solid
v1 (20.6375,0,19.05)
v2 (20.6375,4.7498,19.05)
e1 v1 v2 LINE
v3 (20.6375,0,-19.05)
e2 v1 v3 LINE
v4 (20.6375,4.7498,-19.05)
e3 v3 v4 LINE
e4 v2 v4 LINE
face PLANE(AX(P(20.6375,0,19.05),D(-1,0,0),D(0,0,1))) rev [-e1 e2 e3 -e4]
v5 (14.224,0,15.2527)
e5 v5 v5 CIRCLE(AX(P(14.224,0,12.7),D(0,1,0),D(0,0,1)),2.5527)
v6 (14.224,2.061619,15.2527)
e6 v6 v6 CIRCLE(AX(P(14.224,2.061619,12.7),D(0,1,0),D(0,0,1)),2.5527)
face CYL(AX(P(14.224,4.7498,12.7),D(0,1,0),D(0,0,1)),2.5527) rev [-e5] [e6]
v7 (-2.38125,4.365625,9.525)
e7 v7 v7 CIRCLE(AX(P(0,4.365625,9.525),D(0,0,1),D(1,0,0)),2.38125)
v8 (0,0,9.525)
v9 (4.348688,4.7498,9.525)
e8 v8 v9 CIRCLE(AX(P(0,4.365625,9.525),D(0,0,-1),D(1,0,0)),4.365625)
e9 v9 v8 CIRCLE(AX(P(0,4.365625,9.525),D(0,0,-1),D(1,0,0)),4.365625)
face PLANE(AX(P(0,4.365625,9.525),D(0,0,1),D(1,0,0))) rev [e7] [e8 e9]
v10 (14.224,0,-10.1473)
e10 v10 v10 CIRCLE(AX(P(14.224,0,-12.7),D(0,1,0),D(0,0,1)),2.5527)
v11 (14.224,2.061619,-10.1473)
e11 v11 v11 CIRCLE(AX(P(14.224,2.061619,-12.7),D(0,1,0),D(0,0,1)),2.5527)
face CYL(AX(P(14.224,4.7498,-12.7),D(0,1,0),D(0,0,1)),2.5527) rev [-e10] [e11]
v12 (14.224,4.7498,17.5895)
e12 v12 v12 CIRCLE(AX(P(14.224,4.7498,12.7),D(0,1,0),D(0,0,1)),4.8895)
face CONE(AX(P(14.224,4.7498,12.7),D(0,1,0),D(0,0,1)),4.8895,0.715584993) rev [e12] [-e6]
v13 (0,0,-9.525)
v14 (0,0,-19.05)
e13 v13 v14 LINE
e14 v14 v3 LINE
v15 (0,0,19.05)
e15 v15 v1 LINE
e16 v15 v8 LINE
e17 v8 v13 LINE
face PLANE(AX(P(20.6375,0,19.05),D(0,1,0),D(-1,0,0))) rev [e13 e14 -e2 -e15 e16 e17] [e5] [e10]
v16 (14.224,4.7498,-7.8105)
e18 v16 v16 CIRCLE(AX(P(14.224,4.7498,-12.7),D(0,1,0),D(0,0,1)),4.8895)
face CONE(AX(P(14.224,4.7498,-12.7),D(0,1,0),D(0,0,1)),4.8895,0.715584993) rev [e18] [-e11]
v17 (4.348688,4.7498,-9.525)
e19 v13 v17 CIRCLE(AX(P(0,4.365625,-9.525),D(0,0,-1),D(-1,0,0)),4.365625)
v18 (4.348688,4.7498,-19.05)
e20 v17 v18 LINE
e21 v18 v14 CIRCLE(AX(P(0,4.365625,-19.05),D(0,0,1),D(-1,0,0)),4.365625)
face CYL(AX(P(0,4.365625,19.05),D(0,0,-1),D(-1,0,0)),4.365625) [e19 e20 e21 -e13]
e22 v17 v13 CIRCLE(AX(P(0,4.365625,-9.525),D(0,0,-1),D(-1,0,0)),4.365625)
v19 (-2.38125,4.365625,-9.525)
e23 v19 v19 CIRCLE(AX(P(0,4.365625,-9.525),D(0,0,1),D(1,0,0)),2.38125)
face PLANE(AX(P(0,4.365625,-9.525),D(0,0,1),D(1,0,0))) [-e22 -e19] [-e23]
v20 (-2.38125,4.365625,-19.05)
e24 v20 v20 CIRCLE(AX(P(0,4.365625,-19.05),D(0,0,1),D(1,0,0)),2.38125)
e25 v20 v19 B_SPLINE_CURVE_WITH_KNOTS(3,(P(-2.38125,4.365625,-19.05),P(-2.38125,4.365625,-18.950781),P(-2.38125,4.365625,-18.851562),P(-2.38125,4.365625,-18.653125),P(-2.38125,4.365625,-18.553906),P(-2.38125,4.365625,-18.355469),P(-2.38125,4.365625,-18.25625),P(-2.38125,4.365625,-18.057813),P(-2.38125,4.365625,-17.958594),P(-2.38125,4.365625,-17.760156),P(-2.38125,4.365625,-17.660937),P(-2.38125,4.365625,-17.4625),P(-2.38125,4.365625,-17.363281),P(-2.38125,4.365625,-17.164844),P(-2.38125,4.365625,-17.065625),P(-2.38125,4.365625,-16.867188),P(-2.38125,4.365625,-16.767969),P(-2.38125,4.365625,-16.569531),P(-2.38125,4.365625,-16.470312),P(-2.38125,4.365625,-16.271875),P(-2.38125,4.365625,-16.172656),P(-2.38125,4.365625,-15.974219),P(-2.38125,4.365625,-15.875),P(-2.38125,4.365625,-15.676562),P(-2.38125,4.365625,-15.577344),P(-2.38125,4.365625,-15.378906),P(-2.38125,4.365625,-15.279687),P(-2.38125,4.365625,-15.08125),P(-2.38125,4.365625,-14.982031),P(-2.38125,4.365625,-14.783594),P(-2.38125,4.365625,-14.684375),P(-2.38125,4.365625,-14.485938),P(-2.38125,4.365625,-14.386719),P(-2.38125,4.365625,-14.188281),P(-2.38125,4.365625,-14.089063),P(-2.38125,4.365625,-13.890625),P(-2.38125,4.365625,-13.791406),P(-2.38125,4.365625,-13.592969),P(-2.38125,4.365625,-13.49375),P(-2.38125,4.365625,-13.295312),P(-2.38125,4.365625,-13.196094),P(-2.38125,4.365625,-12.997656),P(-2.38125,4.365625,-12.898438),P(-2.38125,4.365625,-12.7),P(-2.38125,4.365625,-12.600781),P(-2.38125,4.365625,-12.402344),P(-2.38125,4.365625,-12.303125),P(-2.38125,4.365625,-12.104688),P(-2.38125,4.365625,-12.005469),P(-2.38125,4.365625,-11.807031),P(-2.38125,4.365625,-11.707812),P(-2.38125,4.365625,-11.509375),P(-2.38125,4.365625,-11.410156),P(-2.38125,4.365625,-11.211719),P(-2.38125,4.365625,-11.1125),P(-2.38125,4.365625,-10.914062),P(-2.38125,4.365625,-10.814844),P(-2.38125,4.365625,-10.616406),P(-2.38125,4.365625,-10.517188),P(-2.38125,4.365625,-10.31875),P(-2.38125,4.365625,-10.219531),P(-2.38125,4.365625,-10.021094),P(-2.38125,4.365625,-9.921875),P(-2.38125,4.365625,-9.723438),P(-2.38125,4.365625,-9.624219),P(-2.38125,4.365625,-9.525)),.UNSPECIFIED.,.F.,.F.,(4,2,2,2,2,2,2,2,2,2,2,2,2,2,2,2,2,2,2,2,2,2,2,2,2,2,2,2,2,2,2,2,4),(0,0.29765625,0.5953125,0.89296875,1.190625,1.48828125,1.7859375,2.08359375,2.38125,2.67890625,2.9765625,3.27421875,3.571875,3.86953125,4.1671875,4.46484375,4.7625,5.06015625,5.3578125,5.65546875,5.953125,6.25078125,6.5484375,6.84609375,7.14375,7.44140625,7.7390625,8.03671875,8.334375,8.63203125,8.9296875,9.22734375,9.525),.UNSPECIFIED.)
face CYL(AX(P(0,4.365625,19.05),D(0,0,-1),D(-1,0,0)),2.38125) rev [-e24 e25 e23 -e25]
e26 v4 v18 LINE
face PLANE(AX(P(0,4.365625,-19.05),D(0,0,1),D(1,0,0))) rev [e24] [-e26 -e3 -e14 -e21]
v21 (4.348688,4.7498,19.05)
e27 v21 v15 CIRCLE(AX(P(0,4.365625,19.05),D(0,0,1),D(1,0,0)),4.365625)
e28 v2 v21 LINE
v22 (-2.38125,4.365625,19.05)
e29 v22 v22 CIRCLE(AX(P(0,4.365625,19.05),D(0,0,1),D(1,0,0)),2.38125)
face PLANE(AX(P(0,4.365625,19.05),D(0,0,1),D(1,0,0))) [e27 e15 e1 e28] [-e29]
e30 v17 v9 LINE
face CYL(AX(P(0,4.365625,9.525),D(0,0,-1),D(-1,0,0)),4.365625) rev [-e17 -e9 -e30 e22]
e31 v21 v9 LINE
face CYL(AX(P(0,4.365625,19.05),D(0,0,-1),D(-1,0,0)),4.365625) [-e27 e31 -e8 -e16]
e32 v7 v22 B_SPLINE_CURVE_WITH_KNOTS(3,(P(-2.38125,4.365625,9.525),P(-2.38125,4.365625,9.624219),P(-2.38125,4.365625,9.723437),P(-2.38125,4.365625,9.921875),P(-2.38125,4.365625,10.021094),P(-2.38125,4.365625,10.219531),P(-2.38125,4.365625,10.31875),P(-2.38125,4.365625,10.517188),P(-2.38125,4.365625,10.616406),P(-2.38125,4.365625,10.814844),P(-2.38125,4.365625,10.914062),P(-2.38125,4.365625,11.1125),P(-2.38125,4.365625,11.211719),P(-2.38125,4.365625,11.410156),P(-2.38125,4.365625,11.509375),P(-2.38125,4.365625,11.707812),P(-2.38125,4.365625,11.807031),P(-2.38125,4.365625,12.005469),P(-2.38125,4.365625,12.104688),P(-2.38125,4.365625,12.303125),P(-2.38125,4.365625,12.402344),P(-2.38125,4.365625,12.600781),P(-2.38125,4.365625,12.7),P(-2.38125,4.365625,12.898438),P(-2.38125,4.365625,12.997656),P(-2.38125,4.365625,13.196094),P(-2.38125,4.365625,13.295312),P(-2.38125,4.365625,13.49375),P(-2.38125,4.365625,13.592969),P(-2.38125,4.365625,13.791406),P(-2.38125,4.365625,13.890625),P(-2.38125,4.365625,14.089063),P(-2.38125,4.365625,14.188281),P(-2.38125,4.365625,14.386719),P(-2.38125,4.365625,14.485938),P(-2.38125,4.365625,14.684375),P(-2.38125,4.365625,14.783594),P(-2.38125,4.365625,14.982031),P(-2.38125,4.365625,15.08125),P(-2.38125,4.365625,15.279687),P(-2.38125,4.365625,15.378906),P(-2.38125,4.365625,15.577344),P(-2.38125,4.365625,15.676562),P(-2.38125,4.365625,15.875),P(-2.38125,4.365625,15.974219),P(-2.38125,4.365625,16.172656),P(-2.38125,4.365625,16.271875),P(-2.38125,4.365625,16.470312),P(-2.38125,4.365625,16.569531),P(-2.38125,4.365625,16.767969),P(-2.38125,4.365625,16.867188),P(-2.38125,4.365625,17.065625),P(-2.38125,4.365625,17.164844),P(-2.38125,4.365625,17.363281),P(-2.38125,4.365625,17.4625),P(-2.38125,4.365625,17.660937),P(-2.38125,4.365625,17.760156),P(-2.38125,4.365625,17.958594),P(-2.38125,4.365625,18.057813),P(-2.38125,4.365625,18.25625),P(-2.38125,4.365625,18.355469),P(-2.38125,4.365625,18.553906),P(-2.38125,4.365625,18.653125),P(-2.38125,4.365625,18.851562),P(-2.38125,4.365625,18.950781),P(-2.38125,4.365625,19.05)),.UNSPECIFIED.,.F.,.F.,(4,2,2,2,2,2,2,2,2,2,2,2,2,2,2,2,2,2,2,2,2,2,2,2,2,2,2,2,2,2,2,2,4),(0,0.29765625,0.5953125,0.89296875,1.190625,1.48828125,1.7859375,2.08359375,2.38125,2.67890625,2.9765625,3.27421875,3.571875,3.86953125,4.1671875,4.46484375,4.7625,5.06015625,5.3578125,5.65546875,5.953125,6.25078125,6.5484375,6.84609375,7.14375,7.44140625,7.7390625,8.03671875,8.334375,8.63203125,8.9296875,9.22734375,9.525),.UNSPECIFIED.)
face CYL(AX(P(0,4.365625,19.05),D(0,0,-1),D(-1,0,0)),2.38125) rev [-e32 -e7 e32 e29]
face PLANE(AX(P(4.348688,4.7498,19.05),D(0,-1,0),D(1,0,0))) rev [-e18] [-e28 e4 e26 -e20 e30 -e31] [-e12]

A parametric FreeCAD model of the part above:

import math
import FreeCAD as App
import Part
import Sketcher
Q = App.Units.Quantity

doc = App.newDocument("Part")
params = doc.addObject("Spreadsheet::Sheet", "Params")
for row, (alias, value) in enumerate([
    ("sketch1_diameter", "0.1875 in"),
    ("sketch1_radius", "0.171875 in"),
    ("sketch1_width", "0.8125 in"),
    ("sketch1_height", "0.187 in"),
    ("pad1_length", "1.5 in"),
    ("sketch2_width", "0.187 in"),
    ("groove_angle", "360 deg"),
    ("linearpattern_pitch", "1 in"),
    ("sketch3_radius", "0.171875 in"),
    ("pocket1_length", "0.75 in"),
], start=1):
    params.set(f"A{row}", alias)
    params.set(f"B{row}", "=" + value)
    params.setAlias(f"B{row}", alias)

body = doc.addObject("PartDesign::Body", "Body")

# Sketch on XY plane
sketch1 = body.newObject("Sketcher::SketchObject", "Sketch")
sketch1.AttachmentSupport = (doc.getObject("XY_Plane"), [""])
sketch1.MapMode = "FlatFace"
sketch1.addGeometry(Part.LineSegment(App.Vector(20.6, 4.7, 0), App.Vector(4.3, 4.7, 0)), False)
sketch1.addGeometry(Part.ArcOfCircle(Part.Circle(App.Vector(0, 4.4, 0), App.Vector(0, 0, 1), 4.4), math.radians(5), math.radians(175)), False)
sketch1.addGeometry(Part.ArcOfCircle(Part.Circle(App.Vector(0, 4.4, 0), App.Vector(0, 0, 1), 4.4), math.radians(175), math.radians(270)), False)
sketch1.addGeometry(Part.LineSegment(App.Vector(0, 0, 0), App.Vector(20.6, 0, 0)), False)
sketch1.addGeometry(Part.LineSegment(App.Vector(20.6, 0, 0), App.Vector(20.6, 4.7, 0)), False)
sketch1.addGeometry(Part.Circle(App.Vector(0, 4.4, 0), App.Vector(0, 0, 1), 2.4), False)
sketch1.addConstraint(Sketcher.Constraint("Coincident", 0, 2, 1, 1))
sketch1.addConstraint(Sketcher.Constraint("Tangent", 1, 2, 2, 1))
sketch1.addConstraint(Sketcher.Constraint("Tangent", 2, 2, 3, 1))
sketch1.addConstraint(Sketcher.Constraint("Coincident", 3, 2, 4, 1))
sketch1.addConstraint(Sketcher.Constraint("Coincident", 4, 2, 0, 1))
sketch1.addConstraint(Sketcher.Constraint("Horizontal", 0))
sketch1.addConstraint(Sketcher.Constraint("Horizontal", 3))
sketch1.addConstraint(Sketcher.Constraint("Vertical", 4))
sketch1.addConstraint(Sketcher.Constraint("Coincident", 2, 2, -1, 1))
sketch1.addConstraint(Sketcher.Constraint("Coincident", 5, 3, 1, 3))
sketch1.addConstraint(Sketcher.Constraint("Equal", 1, 2))
sketch1.addConstraint(Sketcher.Constraint("Horizontal", 0, 2, 1, 2))
sketch1.addConstraint(Sketcher.Constraint("Diameter", 5, Q("0.1875 in")))
sketch1.addConstraint(Sketcher.Constraint("Radius", 1, Q("0.171875 in")))
sketch1.addConstraint(Sketcher.Constraint("DistanceX", 3, 1, 3, 2, Q("0.8125 in")))
sketch1.addConstraint(Sketcher.Constraint("DistanceY", 4, 1, 4, 2, Q("0.187 in")))
sketch1.setExpression("Constraints[12]", "Params.sketch1_diameter")
sketch1.setExpression("Constraints[13]", "Params.sketch1_radius")
sketch1.setExpression("Constraints[14]", "Params.sketch1_width")
sketch1.setExpression("Constraints[15]", "Params.sketch1_height")
pad1 = body.newObject("PartDesign::Pad", "Pad")
pad1.Profile = sketch1
pad1.setExpression("Length", "Params.pad1_length")
pad1.Midplane = True

# Sketch on YZ plane
sketch2 = body.newObject("Sketcher::SketchObject", "Sketch001")
sketch2.AttachmentSupport = (doc.getObject("YZ_Plane"), [""])
sketch2.MapMode = "FlatFace"
sketch2.AttachmentOffset = App.Placement(App.Vector(0, 0, 0.56 * 25.4), App.Rotation())
sketch2.addGeometry(Part.LineSegment(App.Vector(0, 12.7, 0), App.Vector(4.7, 12.7, 0)), False)
sketch2.addGeometry(Part.LineSegment(App.Vector(4.7, 12.7, 0), App.Vector(4.7, 17.6, 0)), False)
sketch2.addGeometry(Part.LineSegment(App.Vector(4.7, 17.6, 0), App.Vector(2.1, 15.3, 0)), False)
sketch2.addGeometry(Part.LineSegment(App.Vector(2.1, 15.3, 0), App.Vector(0, 15.3, 0)), False)
sketch2.addGeometry(Part.LineSegment(App.Vector(0, 15.3, 0), App.Vector(0, 12.7, 0)), False)
sketch2.addGeometry(Part.LineSegment(App.Vector(4.7, 12.7, 0), App.Vector(0, 12.7, 0)), True)  # axis
sketch2.addConstraint(Sketcher.Constraint("Coincident", 0, 2, 1, 1))
sketch2.addConstraint(Sketcher.Constraint("Coincident", 1, 2, 2, 1))
sketch2.addConstraint(Sketcher.Constraint("Coincident", 2, 2, 3, 1))
sketch2.addConstraint(Sketcher.Constraint("Coincident", 3, 2, 4, 1))
sketch2.addConstraint(Sketcher.Constraint("Coincident", 4, 2, 0, 1))
sketch2.addConstraint(Sketcher.Constraint("Horizontal", 0))
sketch2.addConstraint(Sketcher.Constraint("Vertical", 1))
sketch2.addConstraint(Sketcher.Constraint("Horizontal", 3))
sketch2.addConstraint(Sketcher.Constraint("Vertical", 4))
sketch2.addConstraint(Sketcher.Constraint("Horizontal", 5))
sketch2.addConstraint(Sketcher.Constraint("Coincident", 5, 1, 0, 2))
sketch2.addConstraint(Sketcher.Constraint("PointOnObject", 3, 2, -2))
sketch2.addConstraint(Sketcher.Constraint("PointOnObject", 5, 2, -2))
sketch2.addConstraint(Sketcher.Constraint("Angle", 2, Q("-139 deg")))
sketch2.addConstraint(Sketcher.Constraint("DistanceY", -1, 1, 0, 2, Q("0.5 in")))
sketch2.addConstraint(Sketcher.Constraint("DistanceX", 0, 1, 0, 2, Q("0.187 in")))
sketch2.addConstraint(Sketcher.Constraint("DistanceY", 1, 1, 1, 2, Q("0.1925 in")))
sketch2.addConstraint(Sketcher.Constraint("DistanceY", 4, 2, 4, 1, Q("0.1005 in")))
sketch2.setExpression("Constraints[15]", "Params.sketch2_width")
groove = body.newObject("PartDesign::Groove", "Groove")
groove.Profile = sketch2
groove.ReferenceAxis = (sketch2, ["Axis0"])
groove.setExpression("Angle", "Params.groove_angle")
doc.recompute()

linearpattern = body.newObject("PartDesign::LinearPattern", "LinearPattern")
linearpattern.Originals = [groove]
linearpattern.Direction = (doc.getObject("Z_Axis"), [""])
linearpattern.Mode = "offset"
linearpattern.setExpression("Offset", "Params.linearpattern_pitch")
linearpattern.Occurrences = 2
linearpattern.Reversed = True
body.Tip = linearpattern

# Sketch on XY plane
sketch3 = body.newObject("Sketcher::SketchObject", "Sketch002")
sketch3.AttachmentSupport = (doc.getObject("XY_Plane"), [""])
sketch3.MapMode = "FlatFace"
sketch3.AttachmentOffset = App.Placement(App.Vector(0, 0, -0.375 * 25.4), App.Rotation())
sketch3.addGeometry(Part.ArcOfCircle(Part.Circle(App.Vector(0, 4.4, 0), App.Vector(0, 0, 1), 4.4), math.radians(-90), math.radians(5)), False)
sketch3.addGeometry(Part.ArcOfCircle(Part.Circle(App.Vector(0, 4.4, 0), App.Vector(0, 0, 1), 4.4), math.radians(5), math.radians(270)), False)
sketch3.addConstraint(Sketcher.Constraint("Tangent", 0, 1, 1, 2))
sketch3.addConstraint(Sketcher.Constraint("Coincident", 1, 1, 0, 2))
sketch3.addConstraint(Sketcher.Constraint("Coincident", 0, 1, -1, 1))
sketch3.addConstraint(Sketcher.Constraint("PointOnObject", 0, 3, -2))
sketch3.addConstraint(Sketcher.Constraint("Radius", 0, Q("0.171875 in")))
sketch3.addConstraint(Sketcher.Constraint("DistanceY", -1, 1, 1, 1, Q("0.187 in")))
sketch3.setExpression("Constraints[4]", "Params.sketch3_radius")
pocket1 = body.newObject("PartDesign::Pocket", "Pocket")
pocket1.Profile = sketch3
pocket1.setExpression("Length", "Params.pocket1_length")
pocket1.Reversed = True

doc.recompute()
